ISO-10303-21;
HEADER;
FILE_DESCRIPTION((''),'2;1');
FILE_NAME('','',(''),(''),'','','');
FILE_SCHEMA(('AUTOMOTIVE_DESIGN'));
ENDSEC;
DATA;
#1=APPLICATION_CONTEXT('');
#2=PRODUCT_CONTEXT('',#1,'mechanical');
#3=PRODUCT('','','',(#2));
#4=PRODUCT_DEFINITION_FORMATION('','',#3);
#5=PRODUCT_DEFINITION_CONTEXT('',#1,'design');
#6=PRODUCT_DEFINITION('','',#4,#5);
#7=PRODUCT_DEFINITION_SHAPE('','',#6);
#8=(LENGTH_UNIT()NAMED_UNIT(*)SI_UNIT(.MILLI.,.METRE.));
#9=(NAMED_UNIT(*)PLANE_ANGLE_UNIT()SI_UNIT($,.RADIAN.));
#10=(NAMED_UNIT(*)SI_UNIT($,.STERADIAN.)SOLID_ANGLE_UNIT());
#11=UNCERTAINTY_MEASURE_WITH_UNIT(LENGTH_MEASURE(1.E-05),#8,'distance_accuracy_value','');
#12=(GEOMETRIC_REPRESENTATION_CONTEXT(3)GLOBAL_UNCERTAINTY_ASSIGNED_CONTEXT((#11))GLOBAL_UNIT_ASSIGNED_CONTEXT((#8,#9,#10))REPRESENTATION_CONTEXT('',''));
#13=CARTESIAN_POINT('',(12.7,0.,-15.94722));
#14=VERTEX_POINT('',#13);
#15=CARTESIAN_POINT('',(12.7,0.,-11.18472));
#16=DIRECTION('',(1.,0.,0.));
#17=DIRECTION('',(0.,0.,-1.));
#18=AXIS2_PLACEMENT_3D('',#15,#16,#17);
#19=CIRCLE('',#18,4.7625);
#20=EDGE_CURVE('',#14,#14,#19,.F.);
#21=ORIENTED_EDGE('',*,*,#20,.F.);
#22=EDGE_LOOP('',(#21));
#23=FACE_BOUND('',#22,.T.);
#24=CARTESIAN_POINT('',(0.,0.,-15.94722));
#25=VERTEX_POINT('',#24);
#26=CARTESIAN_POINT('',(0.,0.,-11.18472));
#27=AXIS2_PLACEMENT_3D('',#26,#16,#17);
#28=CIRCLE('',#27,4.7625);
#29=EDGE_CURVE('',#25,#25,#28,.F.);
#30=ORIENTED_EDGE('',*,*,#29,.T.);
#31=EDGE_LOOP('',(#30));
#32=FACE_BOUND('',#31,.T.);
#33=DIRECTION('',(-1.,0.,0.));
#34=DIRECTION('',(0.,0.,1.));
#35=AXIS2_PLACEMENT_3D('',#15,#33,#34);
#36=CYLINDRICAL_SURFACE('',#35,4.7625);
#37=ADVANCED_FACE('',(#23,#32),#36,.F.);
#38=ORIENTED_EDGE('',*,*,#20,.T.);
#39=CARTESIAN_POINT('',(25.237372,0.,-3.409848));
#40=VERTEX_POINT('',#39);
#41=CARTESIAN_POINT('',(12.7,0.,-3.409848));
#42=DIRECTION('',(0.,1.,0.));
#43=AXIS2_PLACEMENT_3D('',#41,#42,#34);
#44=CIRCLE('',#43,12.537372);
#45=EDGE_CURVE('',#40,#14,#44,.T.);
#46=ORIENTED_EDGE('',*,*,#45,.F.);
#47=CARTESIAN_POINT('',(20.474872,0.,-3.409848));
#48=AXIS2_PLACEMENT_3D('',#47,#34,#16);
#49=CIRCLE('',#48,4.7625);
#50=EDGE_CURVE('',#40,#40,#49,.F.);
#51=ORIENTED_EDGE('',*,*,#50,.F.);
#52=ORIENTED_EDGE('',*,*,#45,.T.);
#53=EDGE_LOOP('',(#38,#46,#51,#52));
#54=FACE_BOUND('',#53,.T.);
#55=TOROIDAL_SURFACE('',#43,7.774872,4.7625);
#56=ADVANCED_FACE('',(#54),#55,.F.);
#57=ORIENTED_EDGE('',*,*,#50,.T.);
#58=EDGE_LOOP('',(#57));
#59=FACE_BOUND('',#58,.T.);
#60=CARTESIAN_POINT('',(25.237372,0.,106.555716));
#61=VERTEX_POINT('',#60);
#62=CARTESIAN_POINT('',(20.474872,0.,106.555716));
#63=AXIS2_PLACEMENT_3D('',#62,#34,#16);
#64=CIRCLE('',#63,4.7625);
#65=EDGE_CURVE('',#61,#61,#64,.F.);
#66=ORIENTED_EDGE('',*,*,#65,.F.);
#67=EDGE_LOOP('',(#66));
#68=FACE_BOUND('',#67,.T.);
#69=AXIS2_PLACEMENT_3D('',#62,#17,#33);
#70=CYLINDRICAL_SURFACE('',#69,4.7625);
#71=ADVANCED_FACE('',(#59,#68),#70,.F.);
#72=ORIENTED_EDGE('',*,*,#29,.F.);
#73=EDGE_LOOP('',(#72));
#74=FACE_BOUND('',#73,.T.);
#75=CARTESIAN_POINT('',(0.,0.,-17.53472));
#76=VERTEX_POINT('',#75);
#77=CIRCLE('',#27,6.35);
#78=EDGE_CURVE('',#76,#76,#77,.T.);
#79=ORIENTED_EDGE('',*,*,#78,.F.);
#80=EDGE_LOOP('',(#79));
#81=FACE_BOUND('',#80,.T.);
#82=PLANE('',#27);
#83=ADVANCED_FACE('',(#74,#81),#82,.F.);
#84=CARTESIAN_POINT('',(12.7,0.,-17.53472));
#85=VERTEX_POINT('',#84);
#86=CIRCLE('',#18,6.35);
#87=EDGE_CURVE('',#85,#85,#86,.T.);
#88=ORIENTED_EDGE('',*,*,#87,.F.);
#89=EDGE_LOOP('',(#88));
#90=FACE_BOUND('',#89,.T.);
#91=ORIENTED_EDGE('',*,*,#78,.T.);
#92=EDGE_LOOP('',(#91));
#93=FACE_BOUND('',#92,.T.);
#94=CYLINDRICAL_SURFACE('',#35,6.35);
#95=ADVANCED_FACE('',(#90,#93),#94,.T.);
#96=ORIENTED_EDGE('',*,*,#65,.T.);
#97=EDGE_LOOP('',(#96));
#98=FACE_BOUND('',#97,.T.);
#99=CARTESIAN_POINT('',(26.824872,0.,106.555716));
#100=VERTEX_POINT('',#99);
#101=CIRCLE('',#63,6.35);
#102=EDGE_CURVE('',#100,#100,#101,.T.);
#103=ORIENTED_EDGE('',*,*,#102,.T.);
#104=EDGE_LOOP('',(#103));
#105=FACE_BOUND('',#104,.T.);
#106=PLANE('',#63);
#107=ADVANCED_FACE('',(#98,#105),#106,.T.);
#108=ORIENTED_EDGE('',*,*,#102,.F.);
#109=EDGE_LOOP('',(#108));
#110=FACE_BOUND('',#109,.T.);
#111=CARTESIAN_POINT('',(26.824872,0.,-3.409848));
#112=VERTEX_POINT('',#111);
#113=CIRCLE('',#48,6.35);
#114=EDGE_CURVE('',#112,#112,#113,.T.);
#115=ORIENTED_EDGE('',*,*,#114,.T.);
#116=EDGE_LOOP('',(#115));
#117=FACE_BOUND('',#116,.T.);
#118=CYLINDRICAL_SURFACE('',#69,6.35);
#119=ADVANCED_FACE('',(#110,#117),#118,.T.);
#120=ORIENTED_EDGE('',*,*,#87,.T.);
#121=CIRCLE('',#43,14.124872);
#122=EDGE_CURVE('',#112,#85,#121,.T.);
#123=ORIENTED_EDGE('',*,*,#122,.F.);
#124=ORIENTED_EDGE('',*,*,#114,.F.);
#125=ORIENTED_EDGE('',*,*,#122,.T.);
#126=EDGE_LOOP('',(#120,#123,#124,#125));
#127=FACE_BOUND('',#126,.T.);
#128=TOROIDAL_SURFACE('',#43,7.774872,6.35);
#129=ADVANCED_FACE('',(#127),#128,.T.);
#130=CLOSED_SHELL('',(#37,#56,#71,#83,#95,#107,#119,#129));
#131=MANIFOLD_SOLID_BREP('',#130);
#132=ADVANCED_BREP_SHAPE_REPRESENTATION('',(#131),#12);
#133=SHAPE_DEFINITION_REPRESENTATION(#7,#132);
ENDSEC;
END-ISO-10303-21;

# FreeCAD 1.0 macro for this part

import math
import FreeCAD as App
import Part
import Sketcher
from FreeCAD import Vector
Q = App.Units.Quantity

doc = App.newDocument("Part")
params = doc.addObject("Spreadsheet::Sheet", "Params")
for row, (alias, value) in enumerate([
    ("sketch1_diameter", "0.5 in"),
    ("sketch1_diameter2", "0.375 in"),
    ("sketch2_width", "0.5 in"),
], start=1):
    params.set(f"A{row}", alias)
    params.set(f"B{row}", "=" + value)
    params.setAlias(f"B{row}", alias)

body = doc.addObject("PartDesign::Body", "Body")

# Sketch on YZ plane
sketch1 = doc.addObject("Sketcher::SketchObject", "Sketch")
body.addObject(sketch1)
sketch1.AttachmentSupport = (doc.YZ_Plane, [""])
sketch1.MapMode = "FlatFace"
sketch1.addGeometry(Part.Circle(Vector(0, -11.2, 0), Vector(0, 0, 1), 6.3), False)
sketch1.addGeometry(Part.Circle(Vector(0, -11.2, 0), Vector(0, 0, 1), 4.8), False)
sketch1.addConstraint(Sketcher.Constraint("Coincident", 1, 3, 0, 3))
sketch1.addConstraint(Sketcher.Constraint("PointOnObject", 0, 3, -2))
sketch1.addConstraint(Sketcher.Constraint("Diameter", 0, Q("0.5 in")))
sketch1.addConstraint(Sketcher.Constraint("Diameter", 1, Q("0.375 in")))
sketch1.addConstraint(Sketcher.Constraint("DistanceY", 0, 3, -1, 1, 11.18472))
sketch1.setExpression("Constraints[2]", "Params.sketch1_diameter")
sketch1.setExpression("Constraints[3]", "Params.sketch1_diameter2")

# Sketch on XZ plane
sketch2 = doc.addObject("Sketcher::SketchObject", "Sketch001")
body.addObject(sketch2)
sketch2.AttachmentSupport = (doc.XZ_Plane, [""])
sketch2.MapMode = "FlatFace"
sketch2.addGeometry(Part.LineSegment(Vector(20, 107, 0), Vector(20, -3, 0)), False)
sketch2.addGeometry(Part.ArcOfCircle(Part.Circle(Vector(13, -3, 0), Vector(0, 0, 1), 8), math.radians(-90), math.radians(0)), False)
sketch2.addGeometry(Part.LineSegment(Vector(13, -11, 0), Vector(0, -11, 0)), False)
sketch2.addConstraint(Sketcher.Constraint("Tangent", 0, 2, 1, 2))
sketch2.addConstraint(Sketcher.Constraint("Tangent", 1, 1, 2, 1))
sketch2.addConstraint(Sketcher.Constraint("Vertical", 0))
sketch2.addConstraint(Sketcher.Constraint("Horizontal", 2))
sketch2.addConstraint(Sketcher.Constraint("PointOnObject", 2, 2, -2))
sketch2.addConstraint(Sketcher.Constraint("DistanceX", 2, 2, 2, 1, Q("0.5 in")))
sketch2.addConstraint(Sketcher.Constraint("Radius", 1, 7.774872))
sketch2.addConstraint(Sketcher.Constraint("DistanceY", 0, 2, 0, 1, 109.965564))
sketch2.addConstraint(Sketcher.Constraint("DistanceY", 1, 3, -1, 1, 3.409848))
sketch2.setExpression("Constraints[5]", "Params.sketch2_width")
doc.recompute()

additivepipe = doc.addObject("PartDesign::AdditivePipe", "AdditivePipe")
body.addObject(additivepipe)
additivepipe.Profile = sketch1
additivepipe.Spine = (sketch2, ["Edge1", "Edge2", "Edge3"])

doc.recompute()
